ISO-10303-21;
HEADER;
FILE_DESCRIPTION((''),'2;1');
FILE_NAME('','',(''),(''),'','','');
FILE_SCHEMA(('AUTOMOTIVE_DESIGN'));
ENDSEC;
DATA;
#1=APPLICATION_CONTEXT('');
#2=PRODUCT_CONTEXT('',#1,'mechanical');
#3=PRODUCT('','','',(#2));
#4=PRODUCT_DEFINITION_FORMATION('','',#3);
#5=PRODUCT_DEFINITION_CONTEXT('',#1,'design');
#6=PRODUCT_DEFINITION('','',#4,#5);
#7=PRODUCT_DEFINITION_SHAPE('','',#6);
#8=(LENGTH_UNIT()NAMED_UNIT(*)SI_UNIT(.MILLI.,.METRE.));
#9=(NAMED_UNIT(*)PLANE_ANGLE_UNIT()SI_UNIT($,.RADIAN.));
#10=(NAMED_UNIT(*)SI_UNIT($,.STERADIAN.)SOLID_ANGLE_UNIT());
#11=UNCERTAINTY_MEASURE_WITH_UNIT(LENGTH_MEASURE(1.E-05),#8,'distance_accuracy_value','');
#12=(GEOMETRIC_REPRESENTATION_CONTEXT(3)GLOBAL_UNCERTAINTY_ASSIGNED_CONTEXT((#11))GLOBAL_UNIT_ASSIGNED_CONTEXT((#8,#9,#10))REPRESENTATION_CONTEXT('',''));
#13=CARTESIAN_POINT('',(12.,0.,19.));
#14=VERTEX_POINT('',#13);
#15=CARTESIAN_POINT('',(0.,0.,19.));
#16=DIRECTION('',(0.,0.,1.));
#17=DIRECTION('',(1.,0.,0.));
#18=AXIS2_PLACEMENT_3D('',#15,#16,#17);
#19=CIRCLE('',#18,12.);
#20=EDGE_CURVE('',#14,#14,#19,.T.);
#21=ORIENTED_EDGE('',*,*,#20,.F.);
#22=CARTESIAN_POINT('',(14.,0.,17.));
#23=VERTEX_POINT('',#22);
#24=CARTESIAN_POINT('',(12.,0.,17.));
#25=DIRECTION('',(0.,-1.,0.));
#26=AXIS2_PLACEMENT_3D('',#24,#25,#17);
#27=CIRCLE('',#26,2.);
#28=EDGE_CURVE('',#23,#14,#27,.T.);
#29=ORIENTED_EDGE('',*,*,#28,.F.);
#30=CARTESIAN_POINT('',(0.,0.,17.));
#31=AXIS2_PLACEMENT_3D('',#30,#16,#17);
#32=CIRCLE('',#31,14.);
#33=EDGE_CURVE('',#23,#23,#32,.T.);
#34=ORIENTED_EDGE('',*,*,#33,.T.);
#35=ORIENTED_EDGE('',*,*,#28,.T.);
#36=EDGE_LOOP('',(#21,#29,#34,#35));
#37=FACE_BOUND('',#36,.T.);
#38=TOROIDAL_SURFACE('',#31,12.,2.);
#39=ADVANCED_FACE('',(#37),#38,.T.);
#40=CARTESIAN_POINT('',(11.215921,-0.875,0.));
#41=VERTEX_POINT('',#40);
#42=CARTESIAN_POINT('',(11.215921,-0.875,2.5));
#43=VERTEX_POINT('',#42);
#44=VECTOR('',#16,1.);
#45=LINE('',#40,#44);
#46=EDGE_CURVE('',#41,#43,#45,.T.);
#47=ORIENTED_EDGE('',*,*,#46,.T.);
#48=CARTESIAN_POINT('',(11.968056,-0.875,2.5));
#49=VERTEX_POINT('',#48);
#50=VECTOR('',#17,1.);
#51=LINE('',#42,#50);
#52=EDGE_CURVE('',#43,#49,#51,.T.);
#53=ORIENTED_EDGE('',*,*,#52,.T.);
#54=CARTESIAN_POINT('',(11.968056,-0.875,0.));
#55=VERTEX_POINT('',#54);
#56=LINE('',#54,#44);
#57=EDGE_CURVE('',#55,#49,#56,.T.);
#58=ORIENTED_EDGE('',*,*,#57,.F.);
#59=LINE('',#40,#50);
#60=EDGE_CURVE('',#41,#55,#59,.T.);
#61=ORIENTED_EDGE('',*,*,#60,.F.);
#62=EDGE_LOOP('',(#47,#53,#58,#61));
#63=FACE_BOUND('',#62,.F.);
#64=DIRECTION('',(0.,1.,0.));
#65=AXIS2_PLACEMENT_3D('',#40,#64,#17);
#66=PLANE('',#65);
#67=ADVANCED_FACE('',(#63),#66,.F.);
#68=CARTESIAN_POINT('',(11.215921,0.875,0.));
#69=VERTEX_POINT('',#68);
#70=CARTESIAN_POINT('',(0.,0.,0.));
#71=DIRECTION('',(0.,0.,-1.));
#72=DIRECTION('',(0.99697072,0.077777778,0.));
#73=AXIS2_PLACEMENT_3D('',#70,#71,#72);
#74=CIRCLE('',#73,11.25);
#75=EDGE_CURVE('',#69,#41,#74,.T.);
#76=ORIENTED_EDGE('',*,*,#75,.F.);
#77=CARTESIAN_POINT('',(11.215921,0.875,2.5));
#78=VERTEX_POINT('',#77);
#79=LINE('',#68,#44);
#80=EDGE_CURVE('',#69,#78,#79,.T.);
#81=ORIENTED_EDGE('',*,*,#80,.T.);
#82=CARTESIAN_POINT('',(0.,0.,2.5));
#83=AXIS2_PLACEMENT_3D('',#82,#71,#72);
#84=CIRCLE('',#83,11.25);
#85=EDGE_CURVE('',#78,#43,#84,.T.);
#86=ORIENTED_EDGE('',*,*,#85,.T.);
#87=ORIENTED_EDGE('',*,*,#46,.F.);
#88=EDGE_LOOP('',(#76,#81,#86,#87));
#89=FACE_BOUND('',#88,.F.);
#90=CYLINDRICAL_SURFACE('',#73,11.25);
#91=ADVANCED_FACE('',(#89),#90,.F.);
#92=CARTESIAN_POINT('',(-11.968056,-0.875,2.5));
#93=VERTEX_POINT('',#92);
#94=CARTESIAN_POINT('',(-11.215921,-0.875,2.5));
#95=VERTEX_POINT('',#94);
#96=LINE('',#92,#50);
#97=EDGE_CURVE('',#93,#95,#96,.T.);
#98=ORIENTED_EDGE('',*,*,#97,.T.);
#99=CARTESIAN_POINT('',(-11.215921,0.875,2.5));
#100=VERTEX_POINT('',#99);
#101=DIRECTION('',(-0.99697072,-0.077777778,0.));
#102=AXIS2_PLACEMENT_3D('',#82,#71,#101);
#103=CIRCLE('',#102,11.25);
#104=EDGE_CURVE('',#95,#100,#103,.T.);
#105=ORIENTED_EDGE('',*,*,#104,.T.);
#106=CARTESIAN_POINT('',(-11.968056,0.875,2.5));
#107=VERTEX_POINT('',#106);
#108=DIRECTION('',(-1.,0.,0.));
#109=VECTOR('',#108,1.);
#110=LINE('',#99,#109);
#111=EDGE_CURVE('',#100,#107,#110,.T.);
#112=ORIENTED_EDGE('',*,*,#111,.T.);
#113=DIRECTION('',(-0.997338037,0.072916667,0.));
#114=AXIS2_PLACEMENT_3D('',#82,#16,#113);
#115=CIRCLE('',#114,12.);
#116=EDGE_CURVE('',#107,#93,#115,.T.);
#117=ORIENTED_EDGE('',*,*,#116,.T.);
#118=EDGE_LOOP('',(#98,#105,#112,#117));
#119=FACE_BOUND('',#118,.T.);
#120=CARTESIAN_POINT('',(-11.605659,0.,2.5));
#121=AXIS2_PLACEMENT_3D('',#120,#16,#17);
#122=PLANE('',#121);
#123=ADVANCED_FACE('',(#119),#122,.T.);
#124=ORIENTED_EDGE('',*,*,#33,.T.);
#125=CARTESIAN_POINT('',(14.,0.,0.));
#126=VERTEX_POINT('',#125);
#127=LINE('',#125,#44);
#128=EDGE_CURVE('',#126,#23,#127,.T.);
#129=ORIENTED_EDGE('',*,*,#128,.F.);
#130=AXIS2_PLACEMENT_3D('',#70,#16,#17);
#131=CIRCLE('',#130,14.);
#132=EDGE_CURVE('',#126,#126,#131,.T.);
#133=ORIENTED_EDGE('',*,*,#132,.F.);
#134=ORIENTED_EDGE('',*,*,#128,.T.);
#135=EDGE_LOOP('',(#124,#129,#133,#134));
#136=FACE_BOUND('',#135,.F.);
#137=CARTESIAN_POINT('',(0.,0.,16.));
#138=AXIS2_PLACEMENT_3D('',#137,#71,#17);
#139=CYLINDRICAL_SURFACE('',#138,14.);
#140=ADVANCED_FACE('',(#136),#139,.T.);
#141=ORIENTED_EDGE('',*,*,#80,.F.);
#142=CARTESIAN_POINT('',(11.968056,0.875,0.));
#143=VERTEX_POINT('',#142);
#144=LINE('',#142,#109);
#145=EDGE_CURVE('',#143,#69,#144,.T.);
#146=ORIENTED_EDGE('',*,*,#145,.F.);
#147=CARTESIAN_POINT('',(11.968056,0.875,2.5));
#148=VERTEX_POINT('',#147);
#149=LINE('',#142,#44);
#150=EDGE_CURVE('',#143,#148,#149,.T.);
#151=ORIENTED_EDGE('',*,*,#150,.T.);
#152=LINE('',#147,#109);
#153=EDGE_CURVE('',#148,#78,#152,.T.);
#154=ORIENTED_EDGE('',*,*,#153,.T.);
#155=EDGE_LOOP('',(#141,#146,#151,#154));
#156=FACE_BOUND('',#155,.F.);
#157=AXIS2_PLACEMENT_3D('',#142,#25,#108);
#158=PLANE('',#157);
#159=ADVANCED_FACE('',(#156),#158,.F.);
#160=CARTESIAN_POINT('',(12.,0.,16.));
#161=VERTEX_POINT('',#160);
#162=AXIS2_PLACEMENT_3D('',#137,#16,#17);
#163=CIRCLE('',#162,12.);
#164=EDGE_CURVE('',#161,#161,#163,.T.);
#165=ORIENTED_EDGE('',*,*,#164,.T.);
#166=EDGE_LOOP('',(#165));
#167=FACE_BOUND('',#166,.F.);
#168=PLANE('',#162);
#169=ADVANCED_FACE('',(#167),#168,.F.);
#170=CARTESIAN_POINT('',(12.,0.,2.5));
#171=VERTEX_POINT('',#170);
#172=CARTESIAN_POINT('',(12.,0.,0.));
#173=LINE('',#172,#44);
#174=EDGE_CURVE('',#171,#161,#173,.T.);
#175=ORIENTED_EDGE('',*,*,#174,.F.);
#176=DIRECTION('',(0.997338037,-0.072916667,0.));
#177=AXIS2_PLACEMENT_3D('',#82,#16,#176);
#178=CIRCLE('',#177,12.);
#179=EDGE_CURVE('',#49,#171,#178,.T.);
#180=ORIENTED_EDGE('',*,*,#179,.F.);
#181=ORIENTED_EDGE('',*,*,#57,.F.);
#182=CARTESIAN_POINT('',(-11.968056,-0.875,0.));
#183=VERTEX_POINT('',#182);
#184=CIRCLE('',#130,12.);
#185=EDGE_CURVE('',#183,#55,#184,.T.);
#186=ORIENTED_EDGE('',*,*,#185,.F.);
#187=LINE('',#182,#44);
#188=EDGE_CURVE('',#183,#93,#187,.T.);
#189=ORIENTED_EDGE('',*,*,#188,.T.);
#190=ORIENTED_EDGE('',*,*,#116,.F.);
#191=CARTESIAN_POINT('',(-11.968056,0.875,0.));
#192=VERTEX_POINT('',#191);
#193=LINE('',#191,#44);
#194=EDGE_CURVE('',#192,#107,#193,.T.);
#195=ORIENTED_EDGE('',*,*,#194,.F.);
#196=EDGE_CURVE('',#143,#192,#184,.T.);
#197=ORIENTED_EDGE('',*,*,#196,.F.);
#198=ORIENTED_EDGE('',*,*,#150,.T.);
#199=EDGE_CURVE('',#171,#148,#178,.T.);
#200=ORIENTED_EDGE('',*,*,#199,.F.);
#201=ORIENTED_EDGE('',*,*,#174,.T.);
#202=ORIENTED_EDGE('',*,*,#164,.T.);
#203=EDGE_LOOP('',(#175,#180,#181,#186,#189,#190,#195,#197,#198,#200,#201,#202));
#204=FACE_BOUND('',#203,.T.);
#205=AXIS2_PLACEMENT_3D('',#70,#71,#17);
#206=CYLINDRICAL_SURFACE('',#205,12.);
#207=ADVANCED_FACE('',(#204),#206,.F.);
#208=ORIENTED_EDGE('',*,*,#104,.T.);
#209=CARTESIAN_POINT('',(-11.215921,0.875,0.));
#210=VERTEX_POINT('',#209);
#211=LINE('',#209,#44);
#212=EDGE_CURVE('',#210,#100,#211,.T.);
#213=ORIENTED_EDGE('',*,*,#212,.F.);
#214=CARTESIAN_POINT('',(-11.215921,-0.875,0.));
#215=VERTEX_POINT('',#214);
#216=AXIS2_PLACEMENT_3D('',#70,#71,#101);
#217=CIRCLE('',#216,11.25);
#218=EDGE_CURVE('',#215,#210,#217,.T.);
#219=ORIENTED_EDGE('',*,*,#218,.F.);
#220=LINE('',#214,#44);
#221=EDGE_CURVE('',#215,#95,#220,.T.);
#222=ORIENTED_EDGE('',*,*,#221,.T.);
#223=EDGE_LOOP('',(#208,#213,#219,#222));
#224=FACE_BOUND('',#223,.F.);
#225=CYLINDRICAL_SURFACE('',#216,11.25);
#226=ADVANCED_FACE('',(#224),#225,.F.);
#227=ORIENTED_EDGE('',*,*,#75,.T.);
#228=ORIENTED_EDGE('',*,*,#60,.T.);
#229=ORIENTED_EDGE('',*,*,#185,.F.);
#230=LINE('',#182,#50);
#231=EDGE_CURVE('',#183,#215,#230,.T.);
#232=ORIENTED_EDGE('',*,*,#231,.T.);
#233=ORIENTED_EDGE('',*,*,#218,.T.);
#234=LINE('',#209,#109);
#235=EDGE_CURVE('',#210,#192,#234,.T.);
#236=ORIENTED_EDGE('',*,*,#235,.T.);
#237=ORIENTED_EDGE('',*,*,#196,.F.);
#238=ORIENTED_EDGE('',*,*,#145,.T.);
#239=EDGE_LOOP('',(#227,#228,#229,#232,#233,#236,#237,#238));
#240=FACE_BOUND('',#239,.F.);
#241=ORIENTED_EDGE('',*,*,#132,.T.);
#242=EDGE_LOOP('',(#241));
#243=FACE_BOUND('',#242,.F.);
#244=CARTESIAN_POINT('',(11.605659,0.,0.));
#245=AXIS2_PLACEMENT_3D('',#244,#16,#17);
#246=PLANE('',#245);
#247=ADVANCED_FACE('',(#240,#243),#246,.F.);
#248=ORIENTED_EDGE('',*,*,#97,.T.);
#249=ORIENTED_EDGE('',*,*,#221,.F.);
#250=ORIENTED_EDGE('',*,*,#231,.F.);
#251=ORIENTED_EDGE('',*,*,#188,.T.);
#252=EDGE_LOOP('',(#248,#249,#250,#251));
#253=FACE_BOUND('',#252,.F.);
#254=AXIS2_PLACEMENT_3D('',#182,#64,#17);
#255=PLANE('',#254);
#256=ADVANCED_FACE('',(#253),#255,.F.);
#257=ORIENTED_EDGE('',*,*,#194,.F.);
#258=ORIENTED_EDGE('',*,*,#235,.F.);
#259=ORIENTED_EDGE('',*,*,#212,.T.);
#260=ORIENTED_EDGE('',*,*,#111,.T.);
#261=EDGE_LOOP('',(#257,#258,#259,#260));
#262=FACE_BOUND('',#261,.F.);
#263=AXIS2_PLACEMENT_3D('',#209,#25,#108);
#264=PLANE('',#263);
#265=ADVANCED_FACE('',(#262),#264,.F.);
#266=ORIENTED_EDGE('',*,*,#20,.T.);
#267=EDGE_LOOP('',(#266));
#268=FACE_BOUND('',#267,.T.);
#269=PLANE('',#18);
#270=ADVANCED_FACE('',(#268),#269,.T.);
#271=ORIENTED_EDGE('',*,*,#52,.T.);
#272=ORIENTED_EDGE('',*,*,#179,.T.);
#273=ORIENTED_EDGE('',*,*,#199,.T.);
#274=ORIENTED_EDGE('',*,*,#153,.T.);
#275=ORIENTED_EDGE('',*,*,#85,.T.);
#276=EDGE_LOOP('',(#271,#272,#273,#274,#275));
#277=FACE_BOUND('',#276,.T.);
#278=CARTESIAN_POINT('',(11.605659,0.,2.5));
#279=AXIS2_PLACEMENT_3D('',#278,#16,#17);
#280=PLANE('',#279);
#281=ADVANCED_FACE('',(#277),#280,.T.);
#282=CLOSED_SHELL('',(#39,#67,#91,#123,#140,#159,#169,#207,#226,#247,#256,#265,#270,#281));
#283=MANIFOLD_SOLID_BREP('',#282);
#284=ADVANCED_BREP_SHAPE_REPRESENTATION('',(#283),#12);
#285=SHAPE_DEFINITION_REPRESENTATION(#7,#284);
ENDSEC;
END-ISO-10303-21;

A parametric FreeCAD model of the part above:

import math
import FreeCAD as App
import Part
import Sketcher
Q = App.Units.Quantity


def edges_at(feature, points):
    """Names of the edges that pass closest to the given points."""
    edges = feature.Shape.Edges
    near = lambda p: min(range(len(edges)), key=lambda i: edges[i].distToShape(Part.Vertex(*p))[0])
    return sorted({f"Edge{near(p) + 1}" for p in points})

doc = App.newDocument("Part")
body = doc.addObject("PartDesign::Body", "Body")

# Sketch on XY plane
sketch1 = body.newObject("Sketcher::SketchObject", "Sketch")
sketch1.AttachmentSupport = (doc.getObject("XY_Plane"), [""])
sketch1.MapMode = "FlatFace"
sketch1.addGeometry(Part.Circle(App.Vector(0, 0, 0), App.Vector(0, 0, 1), 14), False)
sketch1.addGeometry(Part.Circle(App.Vector(0, 0, 0), App.Vector(0, 0, 1), 12), False)
sketch1.addConstraint(Sketcher.Constraint("Coincident", 0, 3, -1, 1))
sketch1.addConstraint(Sketcher.Constraint("Coincident", 1, 3, -1, 1))
sketch1.addConstraint(Sketcher.Constraint("Diameter", 0, Q("28 mm")))
sketch1.addConstraint(Sketcher.Constraint("Diameter", 1, Q("24 mm")))
pad1 = body.newObject("PartDesign::Pad", "Pad")
pad1.Profile = sketch1
pad1.Length = 16

# Sketch on XY plane
sketch2 = body.newObject("Sketcher::SketchObject", "Sketch001")
sketch2.AttachmentSupport = (doc.getObject("XY_Plane"), [""])
sketch2.MapMode = "FlatFace"
sketch2.addGeometry(Part.LineSegment(App.Vector(-11.2, 0.9, 0), App.Vector(-12, 0.9, 0)), False)
sketch2.addGeometry(Part.ArcOfCircle(Part.Circle(App.Vector(0, 0, 0), App.Vector(0, 0, 1), 12), math.radians(175.82), math.radians(184.18)), False)
sketch2.addGeometry(Part.LineSegment(App.Vector(-12, -0.9, 0), App.Vector(-11.2, -0.9, 0)), False)
sketch2.addGeometry(Part.ArcOfCircle(Part.Circle(App.Vector(0, 0, 0), App.Vector(0, 0, 1), 11.2), math.radians(175.54), math.radians(184.46)), False)
sketch2.addGeometry(Part.ArcOfCircle(Part.Circle(App.Vector(0, 0, 0), App.Vector(0, 0, 1), 12), math.radians(-4.18), math.radians(4.18)), False)
sketch2.addGeometry(Part.LineSegment(App.Vector(12, 0.9, 0), App.Vector(11.2, 0.9, 0)), False)
sketch2.addGeometry(Part.ArcOfCircle(Part.Circle(App.Vector(0, 0, 0), App.Vector(0, 0, 1), 11.2), math.radians(-4.46), math.radians(4.46)), False)
sketch2.addGeometry(Part.LineSegment(App.Vector(11.2, -0.9, 0), App.Vector(12, -0.9, 0)), False)
sketch2.addConstraint(Sketcher.Constraint("Coincident", 0, 2, 1, 1))
sketch2.addConstraint(Sketcher.Constraint("Coincident", 1, 2, 2, 1))
sketch2.addConstraint(Sketcher.Constraint("Coincident", 2, 2, 3, 2))
sketch2.addConstraint(Sketcher.Constraint("Coincident", 3, 1, 0, 1))
sketch2.addConstraint(Sketcher.Constraint("Coincident", 4, 2, 5, 1))
sketch2.addConstraint(Sketcher.Constraint("Coincident", 5, 2, 6, 2))
sketch2.addConstraint(Sketcher.Constraint("Coincident", 6, 1, 7, 1))
sketch2.addConstraint(Sketcher.Constraint("Coincident", 7, 2, 4, 1))
sketch2.addConstraint(Sketcher.Constraint("Horizontal", 0))
sketch2.addConstraint(Sketcher.Constraint("Horizontal", 2))
sketch2.addConstraint(Sketcher.Constraint("Horizontal", 5))
sketch2.addConstraint(Sketcher.Constraint("Horizontal", 7))
sketch2.addConstraint(Sketcher.Constraint("Coincident", 1, 3, -1, 1))
sketch2.addConstraint(Sketcher.Constraint("Coincident", 3, 3, -1, 1))
sketch2.addConstraint(Sketcher.Constraint("Coincident", 4, 3, -1, 1))
sketch2.addConstraint(Sketcher.Constraint("Coincident", 6, 3, -1, 1))
sketch2.addConstraint(Sketcher.Constraint("Equal", 1, 4))
sketch2.addConstraint(Sketcher.Constraint("Equal", 3, 6))
sketch2.addConstraint(Sketcher.Constraint("Horizontal", 3, 1, 4, 2))
sketch2.addConstraint(Sketcher.Constraint("Horizontal", 2, 2, 6, 1))
sketch2.addConstraint(Sketcher.Constraint("Vertical", 0, 2, 1, 2))
sketch2.addConstraint(Sketcher.Constraint("Radius", 1, Q("12 mm")))
sketch2.addConstraint(Sketcher.Constraint("Radius", 3, Q("11.25 mm")))
sketch2.addConstraint(Sketcher.Constraint("DistanceY", 1, 2, 0, 2, Q("1.75 mm")))
pad2 = body.newObject("PartDesign::Pad", "Pad001")
pad2.Profile = sketch2
pad2.Length = 2.5

# Sketch on XY plane
sketch3 = body.newObject("Sketcher::SketchObject", "Sketch002")
sketch3.AttachmentSupport = (doc.getObject("XY_Plane"), [""])
sketch3.MapMode = "FlatFace"
sketch3.AttachmentOffset = App.Placement(App.Vector(0, 0, 16), App.Rotation())
sketch3.addGeometry(Part.Circle(App.Vector(0, 0, 0), App.Vector(0, 0, 1), 14), False)
sketch3.addConstraint(Sketcher.Constraint("Coincident", 0, 3, -1, 1))
sketch3.addConstraint(Sketcher.Constraint("Diameter", 0, Q("28 mm")))
pad3 = body.newObject("PartDesign::Pad", "Pad002")
pad3.Profile = sketch3
pad3.Length = 3
doc.recompute()

fillet = body.newObject("PartDesign::Fillet", "Fillet")
fillet.Base = (pad3, edges_at(pad3, [(-14, 0, 19)]))
fillet.Radius = 2

doc.recompute()
